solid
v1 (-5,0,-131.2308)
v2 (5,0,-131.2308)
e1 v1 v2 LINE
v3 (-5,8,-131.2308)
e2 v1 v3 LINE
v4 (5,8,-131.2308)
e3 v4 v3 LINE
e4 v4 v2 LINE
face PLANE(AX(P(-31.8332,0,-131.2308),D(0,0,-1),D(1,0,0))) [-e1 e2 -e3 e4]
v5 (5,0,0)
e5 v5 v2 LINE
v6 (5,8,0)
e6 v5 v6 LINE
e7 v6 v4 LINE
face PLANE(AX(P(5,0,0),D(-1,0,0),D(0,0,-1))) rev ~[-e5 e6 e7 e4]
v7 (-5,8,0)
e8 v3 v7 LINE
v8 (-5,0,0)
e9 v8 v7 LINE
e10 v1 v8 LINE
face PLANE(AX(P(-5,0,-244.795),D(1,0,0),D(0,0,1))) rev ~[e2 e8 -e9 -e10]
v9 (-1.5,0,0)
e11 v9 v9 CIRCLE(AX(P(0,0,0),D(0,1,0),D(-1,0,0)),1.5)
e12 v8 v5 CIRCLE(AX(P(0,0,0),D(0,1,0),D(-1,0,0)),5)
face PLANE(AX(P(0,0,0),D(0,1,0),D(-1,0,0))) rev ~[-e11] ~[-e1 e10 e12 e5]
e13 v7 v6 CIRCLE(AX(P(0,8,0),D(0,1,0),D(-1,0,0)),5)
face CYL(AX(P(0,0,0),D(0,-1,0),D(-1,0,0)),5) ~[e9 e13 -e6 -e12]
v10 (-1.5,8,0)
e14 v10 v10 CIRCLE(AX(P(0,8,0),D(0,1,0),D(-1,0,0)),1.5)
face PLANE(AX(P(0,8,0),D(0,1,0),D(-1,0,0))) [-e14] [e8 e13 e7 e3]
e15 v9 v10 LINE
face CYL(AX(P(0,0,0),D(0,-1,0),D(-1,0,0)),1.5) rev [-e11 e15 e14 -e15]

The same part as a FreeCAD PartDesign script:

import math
import FreeCAD as App
import Part
import Sketcher


def add_polygon(sketch, points):
    """Adds a closed chain of lines whose ends are joined by coincident constraints."""
    first, n = sketch.GeometryCount, len(points)
    for a, b in zip(points, points[1:] + points[:1]):
        sketch.addGeometry(Part.LineSegment(App.Vector(*a, 0), App.Vector(*b, 0)), False)
    for i in range(n):
        sketch.addConstraint(Sketcher.Constraint("Coincident", first + i, 2, first + (i + 1) % n, 1))

doc = App.newDocument("Part")
body = doc.addObject("PartDesign::Body", "Body")

# Sketch on XZ plane
sketch1 = doc.addObject("Sketcher::SketchObject", "Sketch")
body.addObject(sketch1)
sketch1.AttachmentSupport = (doc.XZ_Plane, [""])
sketch1.MapMode = "FlatFace"
sketch1.addGeometry(Part.ArcOfCircle(Part.Circle(App.Vector(0, 0, 0), App.Vector(0, 0, 1), 5), math.radians(0), math.radians(180)), False)
sketch1.addGeometry(Part.LineSegment(App.Vector(5, 0, 0), App.Vector(5, -244.8, 0)), False)
sketch1.addGeometry(Part.ArcOfCircle(Part.Circle(App.Vector(0, -244.8, 0), App.Vector(0, 0, 1), 5), math.radians(180), math.radians(360)), False)
sketch1.addGeometry(Part.LineSegment(App.Vector(-5, -244.8, 0), App.Vector(-5, 0, 0)), False)
sketch1.addGeometry(Part.Circle(App.Vector(0, -244.8, 0), App.Vector(0, 0, 1), 1.5), False)
sketch1.addGeometry(Part.Circle(App.Vector(0, 0, 0), App.Vector(0, 0, 1), 1.5), False)
sketch1.addConstraint(Sketcher.Constraint("Tangent", 0, 1, 1, 1))
sketch1.addConstraint(Sketcher.Constraint("Tangent", 1, 2, 2, 2))
sketch1.addConstraint(Sketcher.Constraint("Tangent", 2, 1, 3, 1))
sketch1.addConstraint(Sketcher.Constraint("Tangent", 3, 2, 0, 2))
sketch1.addConstraint(Sketcher.Constraint("Vertical", 1))
sketch1.addConstraint(Sketcher.Constraint("Vertical", 3))
sketch1.addConstraint(Sketcher.Constraint("Coincident", 0, 3, -1, 1))
sketch1.addConstraint(Sketcher.Constraint("Coincident", 5, 3, -1, 1))
sketch1.addConstraint(Sketcher.Constraint("Coincident", 4, 3, 2, 3))
sketch1.addConstraint(Sketcher.Constraint("Equal", 4, 5))
sketch1.addConstraint(Sketcher.Constraint("Diameter", 4, 3.0))
sketch1.addConstraint(Sketcher.Constraint("Radius", 0, 5.0))
sketch1.addConstraint(Sketcher.Constraint("DistanceY", 1, 2, 1, 1, 244.795))
pad1 = doc.addObject("PartDesign::Pad", "Pad")
body.addObject(pad1)
pad1.Profile = sketch1
pad1.Length = 8
pad1.Reversed = True

# Sketch on XZ plane
sketch2 = doc.addObject("Sketcher::SketchObject", "Sketch001")
body.addObject(sketch2)
sketch2.AttachmentSupport = (doc.XZ_Plane, [""])
sketch2.MapMode = "FlatFace"
sketch2.AttachmentOffset = App.Placement(App.Vector(0, 0, -8), App.Rotation())
sketch2.addGeometry(Part.Circle(App.Vector(0, -244.8, 0), App.Vector(0, 0, 1), 5), False)
sketch2.addGeometry(Part.Circle(App.Vector(0, -244.8, 0), App.Vector(0, 0, 1), 1.5), False)
sketch2.addConstraint(Sketcher.Constraint("Coincident", 1, 3, 0, 3))
sketch2.addConstraint(Sketcher.Constraint("PointOnObject", 0, 3, -2))
sketch2.addConstraint(Sketcher.Constraint("Diameter", 0, 10.0))
sketch2.addConstraint(Sketcher.Constraint("Diameter", 1, 3.0))
sketch2.addConstraint(Sketcher.Constraint("DistanceY", 0, 3, -1, 1, 244.795))
pad2 = doc.addObject("PartDesign::Pad", "Pad001")
body.addObject(pad2)
pad2.Profile = sketch2
pad2.Length = 12
pad2.Reversed = True

# Sketch on XZ plane
sketch3 = doc.addObject("Sketcher::SketchObject", "Sketch002")
body.addObject(sketch3)
sketch3.AttachmentSupport = (doc.XZ_Plane, [""])
sketch3.MapMode = "FlatFace"
sketch3.AttachmentOffset = App.Placement(App.Vector(0, 0, -20), App.Rotation())
sketch3.addGeometry(Part.Circle(App.Vector(0, -245, 0), App.Vector(0, 0, 1), 10), False)
sketch3.addConstraint(Sketcher.Constraint("PointOnObject", 0, 3, -2))
sketch3.addConstraint(Sketcher.Constraint("Diameter", 0, 20.0))
sketch3.addConstraint(Sketcher.Constraint("DistanceY", 0, 3, -1, 1, 244.795))
pad3 = doc.addObject("PartDesign::Pad", "Pad002")
body.addObject(pad3)
pad3.Profile = sketch3
pad3.Length = 3

# Sketch on XZ plane
sketch4 = doc.addObject("Sketcher::SketchObject", "Sketch003")
body.addObject(sketch4)
sketch4.AttachmentSupport = (doc.XZ_Plane, [""])
sketch4.MapMode = "FlatFace"
add_polygon(sketch4, [(56, -369), (56, 55), (-102, 55), (-102, -369)])  # lines 0-3
add_polygon(sketch4, [(-32, 11), (23, 11), (23, -131), (-32, -131)])  # lines 4-7
sketch4.addConstraint(Sketcher.Constraint("Vertical", 0))
sketch4.addConstraint(Sketcher.Constraint("Horizontal", 1))
sketch4.addConstraint(Sketcher.Constraint("Vertical", 2))
sketch4.addConstraint(Sketcher.Constraint("Horizontal", 3))
sketch4.addConstraint(Sketcher.Constraint("Horizontal", 4))
sketch4.addConstraint(Sketcher.Constraint("Vertical", 5))
sketch4.addConstraint(Sketcher.Constraint("Horizontal", 6))
sketch4.addConstraint(Sketcher.Constraint("Vertical", 7))
sketch4.addConstraint(Sketcher.Constraint("DistanceX", 4, 1, 4, 2, 54.914))
sketch4.addConstraint(Sketcher.Constraint("DistanceX", 1, 2, 1, 1, 157.9666))
sketch4.addConstraint(Sketcher.Constraint("DistanceY", 0, 1, 0, 2, 424.6913))
sketch4.addConstraint(Sketcher.Constraint("DistanceY", 5, 2, 5, 1, 142.6335))
sketch4.addConstraint(Sketcher.Constraint("DistanceX", 4, 2, 0, 2, 32.449))
sketch4.addConstraint(Sketcher.Constraint("DistanceY", 3, 2, 5, 2, 238.198))
sketch4.addConstraint(Sketcher.Constraint("DistanceX", -1, 1, 0, 2, 55.5298))
sketch4.addConstraint(Sketcher.Constraint("DistanceY", -1, 1, 0, 2, 55.2625))
pocket1 = doc.addObject("PartDesign::Pocket", "Pocket")
body.addObject(pocket1)
pocket1.Profile = sketch4
pocket1.Length = 100

doc.recompute()
